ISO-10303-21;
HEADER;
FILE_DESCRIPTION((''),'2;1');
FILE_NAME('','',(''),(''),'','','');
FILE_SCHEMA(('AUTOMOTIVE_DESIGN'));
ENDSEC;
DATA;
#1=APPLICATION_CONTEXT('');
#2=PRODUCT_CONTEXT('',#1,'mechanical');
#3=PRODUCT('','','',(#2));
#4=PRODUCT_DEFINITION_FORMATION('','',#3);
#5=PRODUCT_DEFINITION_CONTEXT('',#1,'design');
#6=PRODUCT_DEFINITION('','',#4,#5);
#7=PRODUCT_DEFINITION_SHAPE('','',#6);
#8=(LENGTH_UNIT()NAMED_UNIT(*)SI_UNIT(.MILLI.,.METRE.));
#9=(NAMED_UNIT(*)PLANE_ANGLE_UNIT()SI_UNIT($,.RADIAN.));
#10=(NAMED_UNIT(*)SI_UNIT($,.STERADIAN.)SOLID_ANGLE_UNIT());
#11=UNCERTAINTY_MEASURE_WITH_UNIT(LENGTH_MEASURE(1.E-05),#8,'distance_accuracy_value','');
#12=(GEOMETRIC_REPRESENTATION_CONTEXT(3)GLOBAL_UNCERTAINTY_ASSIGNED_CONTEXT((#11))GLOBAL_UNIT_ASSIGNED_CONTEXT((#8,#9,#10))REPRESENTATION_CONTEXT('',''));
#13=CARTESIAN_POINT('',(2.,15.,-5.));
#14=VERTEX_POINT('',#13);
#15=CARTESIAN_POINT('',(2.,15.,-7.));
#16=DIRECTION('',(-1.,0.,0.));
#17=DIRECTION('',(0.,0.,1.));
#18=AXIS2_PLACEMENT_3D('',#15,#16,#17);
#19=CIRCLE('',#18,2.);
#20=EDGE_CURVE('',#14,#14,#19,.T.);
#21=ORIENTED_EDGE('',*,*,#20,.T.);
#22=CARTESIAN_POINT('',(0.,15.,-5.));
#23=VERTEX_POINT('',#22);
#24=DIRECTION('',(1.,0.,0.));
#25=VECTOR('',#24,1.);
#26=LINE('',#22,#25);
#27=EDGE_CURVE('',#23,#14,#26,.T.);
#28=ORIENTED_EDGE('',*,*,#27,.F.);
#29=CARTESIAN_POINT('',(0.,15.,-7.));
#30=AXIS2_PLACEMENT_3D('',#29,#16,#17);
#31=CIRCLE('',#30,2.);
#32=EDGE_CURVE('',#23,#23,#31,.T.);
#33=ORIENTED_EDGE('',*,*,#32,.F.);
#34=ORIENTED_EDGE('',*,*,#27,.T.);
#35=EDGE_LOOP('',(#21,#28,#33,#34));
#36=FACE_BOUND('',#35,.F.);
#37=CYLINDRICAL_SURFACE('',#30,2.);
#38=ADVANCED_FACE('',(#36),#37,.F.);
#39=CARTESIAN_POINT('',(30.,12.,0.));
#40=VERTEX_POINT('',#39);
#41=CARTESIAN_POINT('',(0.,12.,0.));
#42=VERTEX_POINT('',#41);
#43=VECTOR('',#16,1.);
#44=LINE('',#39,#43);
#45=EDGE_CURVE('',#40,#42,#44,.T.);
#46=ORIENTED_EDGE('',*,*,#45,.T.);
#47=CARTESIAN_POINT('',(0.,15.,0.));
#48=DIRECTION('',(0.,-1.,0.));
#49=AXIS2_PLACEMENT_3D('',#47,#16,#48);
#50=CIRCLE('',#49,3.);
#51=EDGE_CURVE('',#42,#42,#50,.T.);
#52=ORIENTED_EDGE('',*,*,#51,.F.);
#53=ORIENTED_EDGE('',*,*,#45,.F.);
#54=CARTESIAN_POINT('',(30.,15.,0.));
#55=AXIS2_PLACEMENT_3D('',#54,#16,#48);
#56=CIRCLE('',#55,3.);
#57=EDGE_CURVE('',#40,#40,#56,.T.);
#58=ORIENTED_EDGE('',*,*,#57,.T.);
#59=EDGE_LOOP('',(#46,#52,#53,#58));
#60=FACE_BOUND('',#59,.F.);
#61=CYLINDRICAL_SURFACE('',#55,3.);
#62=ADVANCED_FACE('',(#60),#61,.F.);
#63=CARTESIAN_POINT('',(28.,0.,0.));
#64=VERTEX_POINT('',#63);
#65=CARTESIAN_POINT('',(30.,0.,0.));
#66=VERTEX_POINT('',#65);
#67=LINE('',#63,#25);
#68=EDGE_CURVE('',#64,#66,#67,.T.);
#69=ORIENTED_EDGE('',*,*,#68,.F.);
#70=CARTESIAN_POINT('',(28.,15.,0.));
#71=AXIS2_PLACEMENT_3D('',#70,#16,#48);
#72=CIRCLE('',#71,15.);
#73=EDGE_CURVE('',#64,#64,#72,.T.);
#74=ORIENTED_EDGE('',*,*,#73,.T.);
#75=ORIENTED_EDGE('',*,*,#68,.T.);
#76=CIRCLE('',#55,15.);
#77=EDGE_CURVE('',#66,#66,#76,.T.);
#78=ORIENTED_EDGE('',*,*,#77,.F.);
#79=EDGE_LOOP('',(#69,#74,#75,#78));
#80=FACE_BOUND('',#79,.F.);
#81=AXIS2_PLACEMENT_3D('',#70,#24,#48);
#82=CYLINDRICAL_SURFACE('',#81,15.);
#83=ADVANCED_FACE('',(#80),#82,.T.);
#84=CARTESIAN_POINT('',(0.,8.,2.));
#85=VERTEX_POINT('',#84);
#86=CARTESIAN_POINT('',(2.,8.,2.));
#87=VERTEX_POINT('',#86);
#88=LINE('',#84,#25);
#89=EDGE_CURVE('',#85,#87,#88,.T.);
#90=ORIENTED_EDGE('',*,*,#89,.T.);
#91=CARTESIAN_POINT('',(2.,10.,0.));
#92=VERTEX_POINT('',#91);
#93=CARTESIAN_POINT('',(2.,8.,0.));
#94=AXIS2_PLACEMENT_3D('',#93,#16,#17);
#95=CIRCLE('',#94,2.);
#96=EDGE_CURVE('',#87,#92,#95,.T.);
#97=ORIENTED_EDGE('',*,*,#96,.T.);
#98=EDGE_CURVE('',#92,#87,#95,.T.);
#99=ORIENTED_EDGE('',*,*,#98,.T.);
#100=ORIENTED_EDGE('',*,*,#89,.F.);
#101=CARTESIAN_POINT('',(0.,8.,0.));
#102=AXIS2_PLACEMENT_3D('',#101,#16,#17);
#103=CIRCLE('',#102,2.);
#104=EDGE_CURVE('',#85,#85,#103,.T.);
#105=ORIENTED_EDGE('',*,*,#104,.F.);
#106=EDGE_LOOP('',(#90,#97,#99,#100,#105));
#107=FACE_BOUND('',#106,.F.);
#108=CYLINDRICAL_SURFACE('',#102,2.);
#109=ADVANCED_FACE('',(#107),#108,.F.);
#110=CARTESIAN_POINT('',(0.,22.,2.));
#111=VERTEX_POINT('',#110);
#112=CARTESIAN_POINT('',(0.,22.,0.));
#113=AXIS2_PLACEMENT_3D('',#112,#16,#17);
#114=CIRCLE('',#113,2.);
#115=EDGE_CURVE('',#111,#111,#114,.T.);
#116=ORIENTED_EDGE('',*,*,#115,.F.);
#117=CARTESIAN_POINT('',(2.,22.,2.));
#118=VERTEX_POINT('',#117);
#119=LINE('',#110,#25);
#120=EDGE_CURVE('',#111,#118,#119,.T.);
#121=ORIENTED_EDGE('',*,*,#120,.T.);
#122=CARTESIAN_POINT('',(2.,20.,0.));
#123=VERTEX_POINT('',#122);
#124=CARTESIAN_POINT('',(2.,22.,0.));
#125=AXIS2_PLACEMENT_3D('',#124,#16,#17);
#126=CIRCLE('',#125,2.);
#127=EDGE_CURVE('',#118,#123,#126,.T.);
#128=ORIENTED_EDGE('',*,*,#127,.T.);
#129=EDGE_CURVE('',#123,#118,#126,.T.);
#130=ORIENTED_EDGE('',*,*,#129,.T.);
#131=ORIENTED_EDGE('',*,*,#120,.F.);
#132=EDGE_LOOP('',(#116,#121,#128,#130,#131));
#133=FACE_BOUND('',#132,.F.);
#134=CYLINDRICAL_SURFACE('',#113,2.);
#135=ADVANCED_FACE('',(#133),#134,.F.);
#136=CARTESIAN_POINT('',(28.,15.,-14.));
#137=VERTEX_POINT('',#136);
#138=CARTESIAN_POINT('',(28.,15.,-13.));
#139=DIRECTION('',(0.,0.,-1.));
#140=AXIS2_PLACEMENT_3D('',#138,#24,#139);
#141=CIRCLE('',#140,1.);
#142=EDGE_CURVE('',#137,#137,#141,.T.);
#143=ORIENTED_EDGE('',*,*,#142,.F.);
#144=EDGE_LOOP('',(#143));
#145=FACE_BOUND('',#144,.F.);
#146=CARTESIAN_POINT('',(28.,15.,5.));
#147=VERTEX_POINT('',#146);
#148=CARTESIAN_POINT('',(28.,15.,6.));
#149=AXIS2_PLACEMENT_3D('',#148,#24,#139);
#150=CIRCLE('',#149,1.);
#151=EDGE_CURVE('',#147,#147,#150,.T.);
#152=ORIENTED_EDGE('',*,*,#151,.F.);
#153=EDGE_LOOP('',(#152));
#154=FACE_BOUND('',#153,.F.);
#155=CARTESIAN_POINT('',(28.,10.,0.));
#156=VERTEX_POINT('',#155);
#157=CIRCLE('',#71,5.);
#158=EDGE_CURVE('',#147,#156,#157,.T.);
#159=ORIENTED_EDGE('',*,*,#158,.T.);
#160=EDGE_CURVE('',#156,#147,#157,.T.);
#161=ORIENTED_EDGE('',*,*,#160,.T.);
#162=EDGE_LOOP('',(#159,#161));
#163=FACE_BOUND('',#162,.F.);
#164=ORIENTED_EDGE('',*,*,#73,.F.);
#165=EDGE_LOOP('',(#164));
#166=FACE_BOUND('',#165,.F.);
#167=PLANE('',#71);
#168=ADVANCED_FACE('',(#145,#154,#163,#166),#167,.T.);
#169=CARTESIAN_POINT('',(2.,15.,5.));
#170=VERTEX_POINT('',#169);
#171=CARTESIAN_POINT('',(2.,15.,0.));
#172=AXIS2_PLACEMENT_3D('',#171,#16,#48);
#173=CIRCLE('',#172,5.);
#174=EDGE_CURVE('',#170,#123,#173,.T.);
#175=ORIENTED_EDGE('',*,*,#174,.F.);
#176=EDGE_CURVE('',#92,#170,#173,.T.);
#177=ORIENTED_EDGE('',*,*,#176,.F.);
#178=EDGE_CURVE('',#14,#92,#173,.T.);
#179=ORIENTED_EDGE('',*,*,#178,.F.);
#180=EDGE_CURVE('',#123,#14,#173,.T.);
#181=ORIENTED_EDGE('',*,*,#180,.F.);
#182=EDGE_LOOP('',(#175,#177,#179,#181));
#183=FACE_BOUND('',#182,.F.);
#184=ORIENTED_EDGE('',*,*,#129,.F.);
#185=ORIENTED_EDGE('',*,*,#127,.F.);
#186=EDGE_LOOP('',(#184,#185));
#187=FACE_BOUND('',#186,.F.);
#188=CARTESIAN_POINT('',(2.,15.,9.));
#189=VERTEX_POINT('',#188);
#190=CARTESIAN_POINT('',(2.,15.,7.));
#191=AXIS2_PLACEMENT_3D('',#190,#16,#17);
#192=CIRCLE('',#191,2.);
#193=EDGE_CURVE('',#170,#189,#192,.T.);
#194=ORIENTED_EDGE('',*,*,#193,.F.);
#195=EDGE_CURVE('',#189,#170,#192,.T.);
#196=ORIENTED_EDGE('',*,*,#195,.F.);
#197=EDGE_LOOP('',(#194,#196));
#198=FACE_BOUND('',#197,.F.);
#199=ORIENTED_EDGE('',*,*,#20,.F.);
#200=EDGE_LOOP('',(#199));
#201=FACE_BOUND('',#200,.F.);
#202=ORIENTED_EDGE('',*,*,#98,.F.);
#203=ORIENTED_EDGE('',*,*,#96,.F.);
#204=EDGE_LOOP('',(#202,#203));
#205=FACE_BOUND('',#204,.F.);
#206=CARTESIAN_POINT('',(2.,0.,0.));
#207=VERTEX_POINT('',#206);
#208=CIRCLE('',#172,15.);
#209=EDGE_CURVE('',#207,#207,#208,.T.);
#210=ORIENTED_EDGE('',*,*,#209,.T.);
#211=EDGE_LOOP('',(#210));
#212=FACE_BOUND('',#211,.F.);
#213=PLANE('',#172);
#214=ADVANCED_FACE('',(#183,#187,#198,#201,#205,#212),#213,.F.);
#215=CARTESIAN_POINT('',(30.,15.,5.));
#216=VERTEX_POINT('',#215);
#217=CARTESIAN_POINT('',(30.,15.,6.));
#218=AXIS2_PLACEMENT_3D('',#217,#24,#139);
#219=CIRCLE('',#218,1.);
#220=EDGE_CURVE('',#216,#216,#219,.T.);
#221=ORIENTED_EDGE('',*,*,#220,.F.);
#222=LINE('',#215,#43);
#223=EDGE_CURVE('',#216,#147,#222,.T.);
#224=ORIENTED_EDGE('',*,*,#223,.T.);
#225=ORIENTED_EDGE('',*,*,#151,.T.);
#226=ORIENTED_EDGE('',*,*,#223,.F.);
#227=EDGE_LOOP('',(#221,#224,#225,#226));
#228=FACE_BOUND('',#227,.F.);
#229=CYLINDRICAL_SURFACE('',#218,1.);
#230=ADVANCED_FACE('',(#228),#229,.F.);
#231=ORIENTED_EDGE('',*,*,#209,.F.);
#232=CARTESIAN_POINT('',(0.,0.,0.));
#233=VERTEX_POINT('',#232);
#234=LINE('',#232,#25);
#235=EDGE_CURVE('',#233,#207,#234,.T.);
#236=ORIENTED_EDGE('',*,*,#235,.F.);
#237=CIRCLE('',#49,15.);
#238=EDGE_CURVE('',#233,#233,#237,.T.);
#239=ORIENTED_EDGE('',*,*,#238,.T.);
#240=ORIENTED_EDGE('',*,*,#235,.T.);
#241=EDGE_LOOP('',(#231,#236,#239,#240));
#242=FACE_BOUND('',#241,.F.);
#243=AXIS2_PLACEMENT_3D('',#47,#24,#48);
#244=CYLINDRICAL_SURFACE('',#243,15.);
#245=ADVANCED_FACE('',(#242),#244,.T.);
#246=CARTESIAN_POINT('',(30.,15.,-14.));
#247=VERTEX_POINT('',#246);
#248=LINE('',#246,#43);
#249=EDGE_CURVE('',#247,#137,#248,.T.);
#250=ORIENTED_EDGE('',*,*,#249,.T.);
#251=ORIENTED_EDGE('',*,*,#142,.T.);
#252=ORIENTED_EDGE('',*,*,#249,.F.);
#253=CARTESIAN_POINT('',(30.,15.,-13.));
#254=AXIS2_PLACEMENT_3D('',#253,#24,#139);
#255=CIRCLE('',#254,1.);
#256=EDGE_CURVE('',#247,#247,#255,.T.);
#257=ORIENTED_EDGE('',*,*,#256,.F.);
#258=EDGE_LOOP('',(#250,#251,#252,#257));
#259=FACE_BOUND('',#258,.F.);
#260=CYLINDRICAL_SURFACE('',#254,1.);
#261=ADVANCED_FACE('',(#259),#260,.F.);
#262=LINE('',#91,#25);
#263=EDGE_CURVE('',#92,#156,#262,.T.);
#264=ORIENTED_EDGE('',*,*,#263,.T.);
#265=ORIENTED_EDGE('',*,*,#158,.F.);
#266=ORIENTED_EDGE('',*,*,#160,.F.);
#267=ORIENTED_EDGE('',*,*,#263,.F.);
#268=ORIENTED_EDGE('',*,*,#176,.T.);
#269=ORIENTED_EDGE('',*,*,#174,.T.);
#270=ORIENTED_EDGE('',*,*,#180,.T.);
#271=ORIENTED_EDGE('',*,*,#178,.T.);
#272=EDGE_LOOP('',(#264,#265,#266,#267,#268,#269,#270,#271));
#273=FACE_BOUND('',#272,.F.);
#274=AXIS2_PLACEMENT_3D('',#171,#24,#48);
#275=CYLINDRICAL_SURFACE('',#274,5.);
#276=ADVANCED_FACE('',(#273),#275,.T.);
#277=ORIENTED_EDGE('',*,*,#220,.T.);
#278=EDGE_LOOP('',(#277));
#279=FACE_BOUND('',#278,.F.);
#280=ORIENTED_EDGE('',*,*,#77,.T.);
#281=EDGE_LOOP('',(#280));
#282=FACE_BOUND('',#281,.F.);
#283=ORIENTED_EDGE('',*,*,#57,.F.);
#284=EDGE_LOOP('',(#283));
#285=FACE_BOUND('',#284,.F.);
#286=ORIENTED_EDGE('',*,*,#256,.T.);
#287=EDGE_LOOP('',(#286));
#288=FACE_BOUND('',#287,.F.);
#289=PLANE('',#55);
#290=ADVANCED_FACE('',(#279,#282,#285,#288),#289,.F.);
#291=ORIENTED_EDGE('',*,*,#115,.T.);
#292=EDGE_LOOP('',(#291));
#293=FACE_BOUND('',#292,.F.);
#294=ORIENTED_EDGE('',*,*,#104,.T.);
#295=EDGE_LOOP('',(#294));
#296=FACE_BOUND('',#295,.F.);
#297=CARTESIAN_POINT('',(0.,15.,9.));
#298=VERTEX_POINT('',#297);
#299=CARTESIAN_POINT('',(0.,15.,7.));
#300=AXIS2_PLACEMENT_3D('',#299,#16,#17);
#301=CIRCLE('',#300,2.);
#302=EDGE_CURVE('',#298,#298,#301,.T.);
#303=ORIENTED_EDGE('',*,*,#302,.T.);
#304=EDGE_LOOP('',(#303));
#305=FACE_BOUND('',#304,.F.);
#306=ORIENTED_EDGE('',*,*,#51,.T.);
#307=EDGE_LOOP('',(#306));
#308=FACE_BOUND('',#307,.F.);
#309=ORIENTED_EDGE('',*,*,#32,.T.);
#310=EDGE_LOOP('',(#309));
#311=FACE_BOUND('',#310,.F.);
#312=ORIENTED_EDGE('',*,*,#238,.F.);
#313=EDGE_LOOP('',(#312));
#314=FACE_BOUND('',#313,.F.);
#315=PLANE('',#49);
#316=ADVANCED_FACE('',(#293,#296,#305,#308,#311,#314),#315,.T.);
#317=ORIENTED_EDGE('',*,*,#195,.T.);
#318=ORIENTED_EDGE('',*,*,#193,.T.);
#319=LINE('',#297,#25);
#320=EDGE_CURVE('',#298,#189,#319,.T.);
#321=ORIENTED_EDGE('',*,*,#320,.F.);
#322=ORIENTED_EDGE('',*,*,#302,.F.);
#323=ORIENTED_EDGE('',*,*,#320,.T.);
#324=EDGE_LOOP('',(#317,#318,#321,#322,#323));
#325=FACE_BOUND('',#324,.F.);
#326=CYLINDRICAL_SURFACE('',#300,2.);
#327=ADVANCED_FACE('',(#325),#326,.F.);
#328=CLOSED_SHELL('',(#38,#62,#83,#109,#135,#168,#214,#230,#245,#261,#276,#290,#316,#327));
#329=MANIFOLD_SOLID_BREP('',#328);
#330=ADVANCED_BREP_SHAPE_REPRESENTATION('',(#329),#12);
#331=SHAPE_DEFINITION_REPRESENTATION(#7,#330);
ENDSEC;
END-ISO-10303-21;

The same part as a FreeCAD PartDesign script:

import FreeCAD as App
import Part
import Sketcher

V = App.Vector

doc = App.newDocument("Part")
params = doc.addObject("Spreadsheet::Sheet", "Params")
for row, (alias, value) in enumerate([
    ("sketch1_width", "2 mm"),
    ("sketch1_width2", "26 mm"),
    ("sketch1_height", "12 mm"),
    ("sketch1_height2", "10 mm"),
    ("revolution_angle", "360 deg"),
    ("sketch2_diameter", "4 mm"),
    ("pocket1_length", "2 mm"),
    ("sketch3_diameter", "2 mm"),
    ("pocket2_length", "2 mm"),
], start=1):
    params.set(f"A{row}", alias)
    params.set(f"B{row}", "=" + value)
    params.setAlias(f"B{row}", alias)

body = doc.addObject("PartDesign::Body", "Body")

# Sketch on XY plane
sketch1 = body.newObject("Sketcher::SketchObject", "Sketch")
sketch1.AttachmentSupport = (doc.getObject("XY_Plane"), [""])
sketch1.MapMode = "FlatFace"
sketch1.addGeometry(Part.LineSegment(V(0, 12, 0), V(0, 0, 0)), False)
sketch1.addGeometry(Part.LineSegment(V(0, 0, 0), V(2, 0, 0)), False)
sketch1.addGeometry(Part.LineSegment(V(2, 0, 0), V(2, 10, 0)), False)
sketch1.addGeometry(Part.LineSegment(V(2, 10, 0), V(28, 10, 0)), False)
sketch1.addGeometry(Part.LineSegment(V(28, 10, 0), V(28, 0, 0)), False)
sketch1.addGeometry(Part.LineSegment(V(28, 0, 0), V(30, 0, 0)), False)
sketch1.addGeometry(Part.LineSegment(V(30, 0, 0), V(30, 12, 0)), False)
sketch1.addGeometry(Part.LineSegment(V(30, 12, 0), V(0, 12, 0)), False)
sketch1.addGeometry(Part.LineSegment(V(30, 15, 0), V(0, 15, 0)), True)  # axis
sketch1.addConstraint(Sketcher.Constraint("Coincident", 0, 2, 1, 1))
sketch1.addConstraint(Sketcher.Constraint("Coincident", 1, 2, 2, 1))
sketch1.addConstraint(Sketcher.Constraint("Coincident", 2, 2, 3, 1))
sketch1.addConstraint(Sketcher.Constraint("Coincident", 3, 2, 4, 1))
sketch1.addConstraint(Sketcher.Constraint("Coincident", 4, 2, 5, 1))
sketch1.addConstraint(Sketcher.Constraint("Coincident", 5, 2, 6, 1))
sketch1.addConstraint(Sketcher.Constraint("Coincident", 6, 2, 7, 1))
sketch1.addConstraint(Sketcher.Constraint("Coincident", 7, 2, 0, 1))
sketch1.addConstraint(Sketcher.Constraint("Vertical", 0))
sketch1.addConstraint(Sketcher.Constraint("Horizontal", 1))
sketch1.addConstraint(Sketcher.Constraint("Vertical", 2))
sketch1.addConstraint(Sketcher.Constraint("Horizontal", 3))
sketch1.addConstraint(Sketcher.Constraint("Vertical", 4))
sketch1.addConstraint(Sketcher.Constraint("Horizontal", 5))
sketch1.addConstraint(Sketcher.Constraint("Vertical", 6))
sketch1.addConstraint(Sketcher.Constraint("Horizontal", 7))
sketch1.addConstraint(Sketcher.Constraint("Horizontal", 8))
sketch1.addConstraint(Sketcher.Constraint("Coincident", 0, 2, -1, 1))
sketch1.addConstraint(Sketcher.Constraint("PointOnObject", 4, 2, -1))
sketch1.addConstraint(Sketcher.Constraint("PointOnObject", 8, 2, -2))
sketch1.addConstraint(Sketcher.Constraint("Vertical", 6, 2, 8, 1))
sketch1.addConstraint(Sketcher.Constraint("Equal", 1, 5))
sketch1.addConstraint(Sketcher.Constraint("DistanceX", 1, 1, 1, 2, 2.0))
sketch1.addConstraint(Sketcher.Constraint("DistanceX", 3, 1, 3, 2, 26.0))
sketch1.addConstraint(Sketcher.Constraint("DistanceY", 0, 2, 0, 1, 12.0))
sketch1.addConstraint(Sketcher.Constraint("DistanceY", 2, 1, 2, 2, 10.0))
sketch1.addConstraint(Sketcher.Constraint("DistanceY", 6, 2, 8, 1, 3.0))
sketch1.setExpression("Constraints[22]", "Params.sketch1_width")
sketch1.setExpression("Constraints[23]", "Params.sketch1_width2")
sketch1.setExpression("Constraints[24]", "Params.sketch1_height")
sketch1.setExpression("Constraints[25]", "Params.sketch1_height2")
revolution = body.newObject("PartDesign::Revolution", "Revolution")
revolution.Profile = sketch1
revolution.ReferenceAxis = (sketch1, ["Axis0"])
revolution.setExpression("Angle", "Params.revolution_angle")

# Sketch on YZ plane
sketch2 = body.newObject("Sketcher::SketchObject", "Sketch001")
sketch2.AttachmentSupport = (doc.getObject("YZ_Plane"), [""])
sketch2.MapMode = "FlatFace"
sketch2.addGeometry(Part.Circle(V(15, 7, 0), V(0, 0, 1), 2), False)
sketch2.addGeometry(Part.Circle(V(15, -7, 0), V(0, 0, 1), 2), False)
sketch2.addGeometry(Part.Circle(V(22, 0, 0), V(0, 0, 1), 2), False)
sketch2.addGeometry(Part.Circle(V(8, 0, 0), V(0, 0, 1), 2), False)
sketch2.addConstraint(Sketcher.Constraint("Equal", 0, 1))
sketch2.addConstraint(Sketcher.Constraint("Equal", 1, 2))
sketch2.addConstraint(Sketcher.Constraint("Equal", 2, 3))
sketch2.addConstraint(Sketcher.Constraint("Symmetric", 0, 3, 1, 3, -1))
sketch2.addConstraint(Sketcher.Constraint("PointOnObject", 2, 3, -1))
sketch2.addConstraint(Sketcher.Constraint("PointOnObject", 3, 3, -1))
sketch2.addConstraint(Sketcher.Constraint("Diameter", 0, 4.0))
sketch2.addConstraint(Sketcher.Constraint("DistanceY", -1, 1, 0, 3, 7.0))
sketch2.addConstraint(Sketcher.Constraint("DistanceX", 0, 3, 2, 3, 7.0))
sketch2.addConstraint(Sketcher.Constraint("DistanceX", 3, 3, 0, 3, 7.0))
sketch2.addConstraint(Sketcher.Constraint("DistanceX", -1, 1, 0, 3, 15.0))
sketch2.setExpression("Constraints[6]", "Params.sketch2_diameter")
pocket1 = body.newObject("PartDesign::Pocket", "Pocket")
pocket1.Profile = sketch2
pocket1.setExpression("Length", "Params.pocket1_length")
pocket1.Reversed = True

# Sketch on YZ plane
sketch3 = body.newObject("Sketcher::SketchObject", "Sketch002")
sketch3.AttachmentSupport = (doc.getObject("YZ_Plane"), [""])
sketch3.MapMode = "FlatFace"
sketch3.AttachmentOffset = App.Placement(V(0, 0, 30), App.Rotation())
sketch3.addGeometry(Part.Circle(V(15, -13, 0), V(0, 0, 1), 1), False)
sketch3.addGeometry(Part.Circle(V(15, 6, 0), V(0, 0, 1), 1), False)
sketch3.addConstraint(Sketcher.Constraint("Equal", 0, 1))
sketch3.addConstraint(Sketcher.Constraint("Vertical", 0, 3, 1, 3))
sketch3.addConstraint(Sketcher.Constraint("Diameter", 0, 2.0))
sketch3.addConstraint(Sketcher.Constraint("DistanceY", 0, 3, -1, 1, 13.0))
sketch3.addConstraint(Sketcher.Constraint("DistanceY", -1, 1, 1, 3, 6.0))
sketch3.addConstraint(Sketcher.Constraint("DistanceX", -1, 1, 0, 3, 15.0))
sketch3.setExpression("Constraints[2]", "Params.sketch3_diameter")
pocket2 = body.newObject("PartDesign::Pocket", "Pocket001")
pocket2.Profile = sketch3
pocket2.setExpression("Length", "Params.pocket2_length")

doc.recompute()
